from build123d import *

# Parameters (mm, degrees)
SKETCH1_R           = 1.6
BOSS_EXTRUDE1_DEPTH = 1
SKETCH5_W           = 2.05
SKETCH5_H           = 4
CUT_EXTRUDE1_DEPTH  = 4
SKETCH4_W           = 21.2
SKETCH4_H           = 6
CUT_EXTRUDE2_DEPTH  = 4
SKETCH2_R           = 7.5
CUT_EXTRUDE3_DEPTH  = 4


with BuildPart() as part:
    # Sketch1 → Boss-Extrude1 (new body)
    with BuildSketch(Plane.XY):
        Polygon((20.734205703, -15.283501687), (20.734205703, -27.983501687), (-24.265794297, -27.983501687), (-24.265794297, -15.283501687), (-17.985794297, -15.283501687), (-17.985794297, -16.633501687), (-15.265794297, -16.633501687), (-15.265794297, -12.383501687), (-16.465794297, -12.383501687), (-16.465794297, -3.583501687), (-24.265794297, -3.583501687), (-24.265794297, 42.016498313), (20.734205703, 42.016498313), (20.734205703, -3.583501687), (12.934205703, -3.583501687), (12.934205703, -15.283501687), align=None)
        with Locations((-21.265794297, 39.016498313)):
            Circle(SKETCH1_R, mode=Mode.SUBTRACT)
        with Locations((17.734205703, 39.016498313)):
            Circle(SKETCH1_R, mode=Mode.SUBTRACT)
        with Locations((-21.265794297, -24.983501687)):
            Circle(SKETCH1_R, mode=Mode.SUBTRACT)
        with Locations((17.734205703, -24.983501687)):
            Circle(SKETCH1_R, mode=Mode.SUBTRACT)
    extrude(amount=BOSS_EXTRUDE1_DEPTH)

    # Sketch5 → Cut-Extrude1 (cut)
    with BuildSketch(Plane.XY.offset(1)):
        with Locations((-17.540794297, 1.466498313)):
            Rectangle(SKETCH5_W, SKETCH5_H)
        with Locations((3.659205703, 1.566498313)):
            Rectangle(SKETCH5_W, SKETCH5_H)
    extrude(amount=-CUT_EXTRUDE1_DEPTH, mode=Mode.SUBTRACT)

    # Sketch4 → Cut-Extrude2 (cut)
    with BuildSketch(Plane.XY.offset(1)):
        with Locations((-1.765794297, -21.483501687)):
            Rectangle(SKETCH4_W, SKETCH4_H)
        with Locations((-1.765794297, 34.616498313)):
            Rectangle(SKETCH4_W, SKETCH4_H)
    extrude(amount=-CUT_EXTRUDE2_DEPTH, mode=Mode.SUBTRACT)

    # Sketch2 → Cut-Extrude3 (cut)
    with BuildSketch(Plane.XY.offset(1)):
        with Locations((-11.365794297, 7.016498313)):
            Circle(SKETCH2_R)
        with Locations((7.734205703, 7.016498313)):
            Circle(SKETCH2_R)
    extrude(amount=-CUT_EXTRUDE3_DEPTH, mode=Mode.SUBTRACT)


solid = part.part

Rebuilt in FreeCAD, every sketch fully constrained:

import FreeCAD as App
import Part
import Sketcher

V = App.Vector
Q = App.Units.Quantity

doc = App.newDocument("Part")
body = doc.addObject("PartDesign::Body", "Body")

# Sketch on XY plane
sketch1 = body.newObject("Sketcher::SketchObject", "Sketch")
sketch1.AttachmentSupport = (doc.getObject("XY_Plane"), [""])
sketch1.MapMode = "FlatFace"
sketch1.addGeometry([
    Part.LineSegment(V(20.734206, -27.983502, 0), V(20.734206, -15.283502, 0)),  # 0
    Part.LineSegment(V(20.734206, -15.283502, 0), V(12.934206, -15.283502, 0)),  # 1
    Part.LineSegment(V(12.934206, -15.283502, 0), V(12.934206, -3.583502, 0)),  # 2
    Part.LineSegment(V(12.934206, -3.583502, 0), V(20.734206, -3.583502, 0)),  # 3
    Part.LineSegment(V(20.734206, -3.583502, 0), V(20.734206, 42.016498, 0)),  # 4
    Part.LineSegment(V(20.734206, 42.016498, 0), V(-24.265794, 42.016498, 0)),  # 5
    Part.LineSegment(V(-24.265794, 42.016498, 0), V(-24.265794, -3.583502, 0)),  # 6
    Part.LineSegment(V(-24.265794, -3.583502, 0), V(-16.465794, -3.583502, 0)),  # 7
    Part.LineSegment(V(-16.465794, -3.583502, 0), V(-16.465794, -12.383502, 0)),  # 8
    Part.LineSegment(V(-16.465794, -12.383502, 0), V(-15.265794, -12.383502, 0)),  # 9
    Part.LineSegment(V(-15.265794, -12.383502, 0), V(-15.265794, -16.633502, 0)),  # 10
    Part.LineSegment(V(-15.265794, -16.633502, 0), V(-17.985794, -16.633502, 0)),  # 11
    Part.LineSegment(V(-17.985794, -16.633502, 0), V(-17.985794, -15.283502, 0)),  # 12
    Part.LineSegment(V(-17.985794, -15.283502, 0), V(-24.265794, -15.283502, 0)),  # 13
    Part.LineSegment(V(-24.265794, -15.283502, 0), V(-24.265794, -27.983502, 0)),  # 14
    Part.LineSegment(V(-24.265794, -27.983502, 0), V(20.734206, -27.983502, 0)),  # 15
    Part.Circle(V(17.734206, -24.983502, 0), V(0, 0, 1), 1.6),  # 16
    Part.Circle(V(-21.265794, -24.983502, 0), V(0, 0, 1), 1.6),  # 17
    Part.Circle(V(17.734206, 39.016498, 0), V(0, 0, 1), 1.6),  # 18
    Part.Circle(V(-21.265794, 39.016498, 0), V(0, 0, 1), 1.6),  # 19
], False)
sketch1.addConstraint([
    Sketcher.Constraint("Coincident", 0, 2, 1, 1),
    Sketcher.Constraint("Coincident", 1, 2, 2, 1),
    Sketcher.Constraint("Coincident", 2, 2, 3, 1),
    Sketcher.Constraint("Coincident", 3, 2, 4, 1),
    Sketcher.Constraint("Coincident", 4, 2, 5, 1),
    Sketcher.Constraint("Coincident", 5, 2, 6, 1),
    Sketcher.Constraint("Coincident", 6, 2, 7, 1),
    Sketcher.Constraint("Coincident", 7, 2, 8, 1),
    Sketcher.Constraint("Coincident", 8, 2, 9, 1),
    Sketcher.Constraint("Coincident", 9, 2, 10, 1),
    Sketcher.Constraint("Coincident", 10, 2, 11, 1),
    Sketcher.Constraint("Coincident", 11, 2, 12, 1),
    Sketcher.Constraint("Coincident", 12, 2, 13, 1),
    Sketcher.Constraint("Coincident", 13, 2, 14, 1),
    Sketcher.Constraint("Coincident", 14, 2, 15, 1),
    Sketcher.Constraint("Coincident", 15, 2, 0, 1),
    Sketcher.Constraint("Vertical", 0),
    Sketcher.Constraint("Horizontal", 1),
    Sketcher.Constraint("Vertical", 2),
    Sketcher.Constraint("Horizontal", 3),
    Sketcher.Constraint("Vertical", 4),
    Sketcher.Constraint("Horizontal", 5),
    Sketcher.Constraint("Vertical", 6),
    Sketcher.Constraint("Horizontal", 7),
    Sketcher.Constraint("Vertical", 8),
    Sketcher.Constraint("Horizontal", 9),
    Sketcher.Constraint("Vertical", 10),
    Sketcher.Constraint("Horizontal", 11),
    Sketcher.Constraint("Vertical", 12),
    Sketcher.Constraint("Horizontal", 13),
    Sketcher.Constraint("Vertical", 14),
    Sketcher.Constraint("Horizontal", 15),
    Sketcher.Constraint("Equal", 16, 17),
    Sketcher.Constraint("Equal", 17, 18),
    Sketcher.Constraint("Equal", 18, 19),
    Sketcher.Constraint("Horizontal", 16, 3, 17, 3),
    Sketcher.Constraint("Horizontal", 18, 3, 19, 3),
    Sketcher.Constraint("Horizontal", 3, 2, 6, 2),
    Sketcher.Constraint("Horizontal", 1, 2, 12, 2),
    Sketcher.Constraint("Vertical", 16, 3, 18, 3),
    Sketcher.Constraint("Vertical", 17, 3, 19, 3),
    Sketcher.Constraint("Vertical", 0, 2, 3, 2),
    Sketcher.Constraint("Vertical", 6, 2, 13, 2),
    Sketcher.Constraint("Equal", 3, 7),
    Sketcher.Constraint("Diameter", 16, Q("3.2 mm")),
    Sketcher.Constraint("DistanceX", 5, 2, 5, 1, Q("45 mm")),
    Sketcher.Constraint("DistanceX", 1, 2, 1, 1, Q("7.8 mm")),
    Sketcher.Constraint("DistanceX", 9, 1, 9, 2, Q("1.2 mm")),
    Sketcher.Constraint("DistanceY", 0, 1, 0, 2, Q("12.7 mm")),
    Sketcher.Constraint("DistanceY", 2, 1, 2, 2, Q("11.7 mm")),
    Sketcher.Constraint("DistanceY", 4, 1, 4, 2, Q("45.6 mm")),
    Sketcher.Constraint("DistanceY", 8, 2, 8, 1, Q("8.8 mm")),
    Sketcher.Constraint("DistanceX", 17, 3, 16, 3, Q("39 mm")),
    Sketcher.Constraint("DistanceY", 16, 3, 18, 3, Q("64 mm")),
    Sketcher.Constraint("DistanceX", 16, 3, 0, 2, Q("3 mm")),
    Sketcher.Constraint("DistanceY", 18, 3, 4, 2, Q("3 mm")),
    Sketcher.Constraint("DistanceX", 11, 2, 11, 1, Q("2.72 mm")),
    Sketcher.Constraint("DistanceY", 10, 2, 10, 1, Q("4.25 mm")),
    Sketcher.Constraint("DistanceY", 16, 3, -1, 1, Q("24.983502 mm")),
    Sketcher.Constraint("DistanceX", -1, 1, 16, 3, Q("17.734206 mm")),
])
pad1 = body.newObject("PartDesign::Pad", "Pad")
pad1.Profile = sketch1
pad1.Length = 1

# Sketch on XY plane
sketch2 = body.newObject("Sketcher::SketchObject", "Sketch001")
sketch2.AttachmentSupport = (doc.getObject("XY_Plane"), [""])
sketch2.MapMode = "FlatFace"
sketch2.AttachmentOffset = App.Placement(V(0, 0, 1), App.Rotation())
sketch2.addGeometry([
    Part.LineSegment(V(-18.565794, 3.466498, 0), V(-18.565794, -0.533502, 0)),  # 0
    Part.LineSegment(V(-18.565794, -0.533502, 0), V(-16.515794, -0.533502, 0)),  # 1
    Part.LineSegment(V(-16.515794, -0.533502, 0), V(-16.515794, 3.466498, 0)),  # 2
    Part.LineSegment(V(-16.515794, 3.466498, 0), V(-18.565794, 3.466498, 0)),  # 3
    Part.LineSegment(V(2.634206, 3.566498, 0), V(2.634206, -0.433502, 0)),  # 4
    Part.LineSegment(V(2.634206, -0.433502, 0), V(4.684206, -0.433502, 0)),  # 5
    Part.LineSegment(V(4.684206, -0.433502, 0), V(4.684206, 3.566498, 0)),  # 6
    Part.LineSegment(V(4.684206, 3.566498, 0), V(2.634206, 3.566498, 0)),  # 7
], False)
sketch2.addConstraint([
    Sketcher.Constraint("Coincident", 0, 2, 1, 1),
    Sketcher.Constraint("Coincident", 1, 2, 2, 1),
    Sketcher.Constraint("Coincident", 2, 2, 3, 1),
    Sketcher.Constraint("Coincident", 3, 2, 0, 1),
    Sketcher.Constraint("Coincident", 4, 2, 5, 1),
    Sketcher.Constraint("Coincident", 5, 2, 6, 1),
    Sketcher.Constraint("Coincident", 6, 2, 7, 1),
    Sketcher.Constraint("Coincident", 7, 2, 4, 1),
    Sketcher.Constraint("Vertical", 0),
    Sketcher.Constraint("Horizontal", 1),
    Sketcher.Constraint("Vertical", 2),
    Sketcher.Constraint("Horizontal", 3),
    Sketcher.Constraint("Vertical", 4),
    Sketcher.Constraint("Horizontal", 5),
    Sketcher.Constraint("Vertical", 6),
    Sketcher.Constraint("Horizontal", 7),
    Sketcher.Constraint("Equal", 3, 5),
    Sketcher.Constraint("Equal", 2, 4),
    Sketcher.Constraint("DistanceY", 0, 2, 0, 1, Q("4 mm")),
    Sketcher.Constraint("DistanceX", 1, 1, 1, 2, Q("2.05 mm")),
    Sketcher.Constraint("DistanceY", 1, 2, 4, 2, Q("0.1 mm")),
    Sketcher.Constraint("DistanceX", 0, 2, 4, 2, Q("21.2 mm")),
    Sketcher.Constraint("DistanceY", 0, 2, -1, 1, Q("0.533502 mm")),
    Sketcher.Constraint("DistanceX", 0, 2, -1, 1, Q("18.565794 mm")),
])
pocket1 = body.newObject("PartDesign::Pocket", "Pocket")
pocket1.Profile = sketch2
pocket1.Length = 4

# Sketch on XY plane
sketch3 = body.newObject("Sketcher::SketchObject", "Sketch002")
sketch3.AttachmentSupport = (doc.getObject("XY_Plane"), [""])
sketch3.MapMode = "FlatFace"
sketch3.AttachmentOffset = App.Placement(V(0, 0, 1), App.Rotation())
sketch3.addGeometry([
    Part.LineSegment(V(-12.365794, -18.483502, 0), V(-12.365794, -24.483502, 0)),  # 0
    Part.LineSegment(V(-12.365794, -24.483502, 0), V(8.834206, -24.483502, 0)),  # 1
    Part.LineSegment(V(8.834206, -24.483502, 0), V(8.834206, -18.483502, 0)),  # 2
    Part.LineSegment(V(8.834206, -18.483502, 0), V(-12.365794, -18.483502, 0)),  # 3
    Part.LineSegment(V(-12.365794, 37.616498, 0), V(-12.365794, 31.616498, 0)),  # 4
    Part.LineSegment(V(-12.365794, 31.616498, 0), V(8.834206, 31.616498, 0)),  # 5
    Part.LineSegment(V(8.834206, 31.616498, 0), V(8.834206, 37.616498, 0)),  # 6
    Part.LineSegment(V(8.834206, 37.616498, 0), V(-12.365794, 37.616498, 0)),  # 7
], False)
sketch3.addConstraint([
    Sketcher.Constraint("Coincident", 0, 2, 1, 1),
    Sketcher.Constraint("Coincident", 1, 2, 2, 1),
    Sketcher.Constraint("Coincident", 2, 2, 3, 1),
    Sketcher.Constraint("Coincident", 3, 2, 0, 1),
    Sketcher.Constraint("Coincident", 4, 2, 5, 1),
    Sketcher.Constraint("Coincident", 5, 2, 6, 1),
    Sketcher.Constraint("Coincident", 6, 2, 7, 1),
    Sketcher.Constraint("Coincident", 7, 2, 4, 1),
    Sketcher.Constraint("Vertical", 0),
    Sketcher.Constraint("Horizontal", 1),
    Sketcher.Constraint("Vertical", 2),
    Sketcher.Constraint("Horizontal", 3),
    Sketcher.Constraint("Vertical", 4),
    Sketcher.Constraint("Horizontal", 5),
    Sketcher.Constraint("Vertical", 6),
    Sketcher.Constraint("Horizontal", 7),
    Sketcher.Constraint("Vertical", 3, 2, 4, 2),
    Sketcher.Constraint("Vertical", 2, 2, 5, 2),
    Sketcher.Constraint("Equal", 2, 4),
    Sketcher.Constraint("DistanceY", 0, 2, 0, 1, Q("6 mm")),
    Sketcher.Constraint("DistanceX", 1, 1, 1, 2, Q("21.2 mm")),
    Sketcher.Constraint("DistanceY", 3, 2, 4, 2, Q("50.1 mm")),
    Sketcher.Constraint("DistanceY", 0, 2, -1, 1, Q("24.483502 mm")),
    Sketcher.Constraint("DistanceX", 0, 2, -1, 1, Q("12.365794 mm")),
])
pocket2 = body.newObject("PartDesign::Pocket", "Pocket001")
pocket2.Profile = sketch3
pocket2.Length = 4

# Sketch on XY plane
sketch4 = body.newObject("Sketcher::SketchObject", "Sketch003")
sketch4.AttachmentSupport = (doc.getObject("XY_Plane"), [""])
sketch4.MapMode = "FlatFace"
sketch4.AttachmentOffset = App.Placement(V(0, 0, 1), App.Rotation())
sketch4.addGeometry([
    Part.Circle(V(-11.365794, 7.016498, 0), V(0, 0, 1), 7.5),
    Part.Circle(V(7.734206, 7.016498, 0), V(0, 0, 1), 7.5),
], False)
sketch4.addConstraint([
    Sketcher.Constraint("Equal", 0, 1),
    Sketcher.Constraint("Horizontal", 0, 3, 1, 3),
    Sketcher.Constraint("Diameter", 0, Q("15 mm")),
    Sketcher.Constraint("DistanceX", 0, 3, 1, 3, Q("19.1 mm")),
    Sketcher.Constraint("DistanceY", -1, 1, 0, 3, Q("7.016498 mm")),
    Sketcher.Constraint("DistanceX", 0, 3, -1, 1, Q("11.365794 mm")),
])
pocket3 = body.newObject("PartDesign::Pocket", "Pocket002")
pocket3.Profile = sketch4
pocket3.Length = 4

doc.recompute()
